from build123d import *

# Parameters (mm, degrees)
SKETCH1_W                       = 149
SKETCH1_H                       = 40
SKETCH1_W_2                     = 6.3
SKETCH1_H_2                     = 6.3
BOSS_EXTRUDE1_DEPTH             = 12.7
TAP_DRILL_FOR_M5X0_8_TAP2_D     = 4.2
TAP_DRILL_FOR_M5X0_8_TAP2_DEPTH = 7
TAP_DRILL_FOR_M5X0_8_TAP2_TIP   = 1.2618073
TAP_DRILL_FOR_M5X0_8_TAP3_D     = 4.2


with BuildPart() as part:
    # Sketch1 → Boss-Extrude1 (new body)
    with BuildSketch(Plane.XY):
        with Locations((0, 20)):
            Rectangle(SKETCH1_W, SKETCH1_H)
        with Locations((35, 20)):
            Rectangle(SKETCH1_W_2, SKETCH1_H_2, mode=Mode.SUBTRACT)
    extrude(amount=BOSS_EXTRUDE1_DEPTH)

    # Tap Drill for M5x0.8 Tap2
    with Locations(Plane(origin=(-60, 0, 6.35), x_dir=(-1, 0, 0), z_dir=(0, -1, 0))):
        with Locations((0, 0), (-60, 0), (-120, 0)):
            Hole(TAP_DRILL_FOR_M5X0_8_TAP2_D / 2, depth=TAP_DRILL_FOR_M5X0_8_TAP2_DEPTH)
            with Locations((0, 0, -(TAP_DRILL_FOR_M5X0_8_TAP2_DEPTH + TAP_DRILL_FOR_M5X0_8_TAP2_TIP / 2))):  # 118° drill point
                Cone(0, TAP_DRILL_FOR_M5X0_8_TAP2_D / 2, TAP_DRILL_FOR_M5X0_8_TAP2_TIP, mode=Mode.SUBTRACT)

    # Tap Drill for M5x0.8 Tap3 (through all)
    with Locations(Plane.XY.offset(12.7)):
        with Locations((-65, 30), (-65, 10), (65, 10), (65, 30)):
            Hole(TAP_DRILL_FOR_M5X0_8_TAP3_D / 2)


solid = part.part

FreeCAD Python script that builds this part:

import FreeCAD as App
import Part
import Sketcher


def add_polygon(sketch, points):
    """Adds a closed chain of lines whose ends are joined by coincident constraints."""
    first, n = sketch.GeometryCount, len(points)
    for a, b in zip(points, points[1:] + points[:1]):
        sketch.addGeometry(Part.LineSegment(App.Vector(*a, 0), App.Vector(*b, 0)), False)
    for i in range(n):
        sketch.addConstraint(Sketcher.Constraint("Coincident", first + i, 2, first + (i + 1) % n, 1))

doc = App.newDocument("Part")
body = doc.addObject("PartDesign::Body", "Body")

# Sketch on XY plane
sketch1 = body.newObject("Sketcher::SketchObject", "Sketch")
sketch1.AttachmentSupport = (doc.getObject("XY_Plane"), [""])
sketch1.MapMode = "FlatFace"
add_polygon(sketch1, [(-74, 40), (-74, 0), (74, 0), (74, 40)])  # lines 0-3
add_polygon(sketch1, [(38, 17), (32, 17), (32, 23), (38, 23)])  # lines 4-7
sketch1.addConstraint([
    Sketcher.Constraint("Vertical", 0),
    Sketcher.Constraint("Horizontal", 1),
    Sketcher.Constraint("Vertical", 2),
    Sketcher.Constraint("Horizontal", 3),
    Sketcher.Constraint("Horizontal", 4),
    Sketcher.Constraint("Vertical", 5),
    Sketcher.Constraint("Horizontal", 6),
    Sketcher.Constraint("Vertical", 7),
    Sketcher.Constraint("Symmetric", 0, 2, 1, 2, -1, 1),
    Sketcher.Constraint("Equal", 6, 5),
    Sketcher.Constraint("DistanceX", 1, 1, 1, 2, 149.0),
    Sketcher.Constraint("DistanceY", 0, 2, 0, 1, 40.0),
    Sketcher.Constraint("DistanceX", 4, 2, 4, 1, 6.3),
    Sketcher.Constraint("DistanceX", -1, 1, 4, 2, 31.85),
    Sketcher.Constraint("DistanceY", -1, 1, 4, 2, 16.85),
])
pad1 = body.newObject("PartDesign::Pad", "Pad")
pad1.Profile = sketch1
pad1.Length = 12.7

# Sketch on XZ plane
sketch2 = body.newObject("Sketcher::SketchObject", "Sketch001")
sketch2.AttachmentSupport = (doc.getObject("XZ_Plane"), [""])
sketch2.MapMode = "FlatFace"
sketch2.addGeometry([
    Part.Circle(App.Vector(-60, 6.3, 0), App.Vector(0, 0, 1), 2.1),
    Part.Circle(App.Vector(0, 6.3, 0), App.Vector(0, 0, 1), 2.1),
    Part.Circle(App.Vector(60, 6.3, 0), App.Vector(0, 0, 1), 2.1),
], False)
sketch2.addConstraint([
    Sketcher.Constraint("Equal", 0, 1),
    Sketcher.Constraint("Equal", 1, 2),
    Sketcher.Constraint("Symmetric", 0, 3, 2, 3, -2),
    Sketcher.Constraint("PointOnObject", 1, 3, -2),
    Sketcher.Constraint("Horizontal", 0, 3, 1, 3),
    Sketcher.Constraint("Diameter", 0, 4.2),
    Sketcher.Constraint("DistanceX", 0, 3, -1, 1, 60.0),
    Sketcher.Constraint("DistanceY", -1, 1, 0, 3, 6.35),
])
doc.recompute()
hole = body.newObject("PartDesign::Hole", "Hole")
hole.Profile = sketch2
hole.ThreadType = "None"
hole.Diameter = 4.2
hole.DepthType = "Dimension"
hole.Depth = 7
hole.DrillPoint = "Angled"
hole.DrillPointAngle = 118

# Sketch on XY plane
sketch3 = body.newObject("Sketcher::SketchObject", "Sketch002")
sketch3.AttachmentSupport = (doc.getObject("XY_Plane"), [""])
sketch3.MapMode = "FlatFace"
sketch3.AttachmentOffset = App.Placement(App.Vector(0, 0, 12.7), App.Rotation())
sketch3.addGeometry([
    Part.Circle(App.Vector(-65, 30, 0), App.Vector(0, 0, 1), 2.1),
    Part.Circle(App.Vector(-65, 10, 0), App.Vector(0, 0, 1), 2.1),
    Part.Circle(App.Vector(65, 10, 0), App.Vector(0, 0, 1), 2.1),
    Part.Circle(App.Vector(65, 30, 0), App.Vector(0, 0, 1), 2.1),
], False)
sketch3.addConstraint([
    Sketcher.Constraint("Equal", 0, 1),
    Sketcher.Constraint("Equal", 1, 2),
    Sketcher.Constraint("Equal", 2, 3),
    Sketcher.Constraint("Symmetric", 1, 3, 2, 3, -2),
    Sketcher.Constraint("Symmetric", 0, 3, 3, 3, -2),
    Sketcher.Constraint("Vertical", 0, 3, 1, 3),
    Sketcher.Constraint("Diameter", 0, 4.2),
    Sketcher.Constraint("DistanceX", 0, 3, -1, 1, 65.0),
    Sketcher.Constraint("DistanceY", -1, 1, 0, 3, 30.0),
    Sketcher.Constraint("DistanceY", -1, 1, 1, 3, 10.0),
])
doc.recompute()
hole2 = body.newObject("PartDesign::Hole", "Hole001")
hole2.Profile = sketch3
hole2.ThreadType = "None"
hole2.Diameter = 4.2
hole2.DepthType = "ThroughAll"

doc.recompute()
